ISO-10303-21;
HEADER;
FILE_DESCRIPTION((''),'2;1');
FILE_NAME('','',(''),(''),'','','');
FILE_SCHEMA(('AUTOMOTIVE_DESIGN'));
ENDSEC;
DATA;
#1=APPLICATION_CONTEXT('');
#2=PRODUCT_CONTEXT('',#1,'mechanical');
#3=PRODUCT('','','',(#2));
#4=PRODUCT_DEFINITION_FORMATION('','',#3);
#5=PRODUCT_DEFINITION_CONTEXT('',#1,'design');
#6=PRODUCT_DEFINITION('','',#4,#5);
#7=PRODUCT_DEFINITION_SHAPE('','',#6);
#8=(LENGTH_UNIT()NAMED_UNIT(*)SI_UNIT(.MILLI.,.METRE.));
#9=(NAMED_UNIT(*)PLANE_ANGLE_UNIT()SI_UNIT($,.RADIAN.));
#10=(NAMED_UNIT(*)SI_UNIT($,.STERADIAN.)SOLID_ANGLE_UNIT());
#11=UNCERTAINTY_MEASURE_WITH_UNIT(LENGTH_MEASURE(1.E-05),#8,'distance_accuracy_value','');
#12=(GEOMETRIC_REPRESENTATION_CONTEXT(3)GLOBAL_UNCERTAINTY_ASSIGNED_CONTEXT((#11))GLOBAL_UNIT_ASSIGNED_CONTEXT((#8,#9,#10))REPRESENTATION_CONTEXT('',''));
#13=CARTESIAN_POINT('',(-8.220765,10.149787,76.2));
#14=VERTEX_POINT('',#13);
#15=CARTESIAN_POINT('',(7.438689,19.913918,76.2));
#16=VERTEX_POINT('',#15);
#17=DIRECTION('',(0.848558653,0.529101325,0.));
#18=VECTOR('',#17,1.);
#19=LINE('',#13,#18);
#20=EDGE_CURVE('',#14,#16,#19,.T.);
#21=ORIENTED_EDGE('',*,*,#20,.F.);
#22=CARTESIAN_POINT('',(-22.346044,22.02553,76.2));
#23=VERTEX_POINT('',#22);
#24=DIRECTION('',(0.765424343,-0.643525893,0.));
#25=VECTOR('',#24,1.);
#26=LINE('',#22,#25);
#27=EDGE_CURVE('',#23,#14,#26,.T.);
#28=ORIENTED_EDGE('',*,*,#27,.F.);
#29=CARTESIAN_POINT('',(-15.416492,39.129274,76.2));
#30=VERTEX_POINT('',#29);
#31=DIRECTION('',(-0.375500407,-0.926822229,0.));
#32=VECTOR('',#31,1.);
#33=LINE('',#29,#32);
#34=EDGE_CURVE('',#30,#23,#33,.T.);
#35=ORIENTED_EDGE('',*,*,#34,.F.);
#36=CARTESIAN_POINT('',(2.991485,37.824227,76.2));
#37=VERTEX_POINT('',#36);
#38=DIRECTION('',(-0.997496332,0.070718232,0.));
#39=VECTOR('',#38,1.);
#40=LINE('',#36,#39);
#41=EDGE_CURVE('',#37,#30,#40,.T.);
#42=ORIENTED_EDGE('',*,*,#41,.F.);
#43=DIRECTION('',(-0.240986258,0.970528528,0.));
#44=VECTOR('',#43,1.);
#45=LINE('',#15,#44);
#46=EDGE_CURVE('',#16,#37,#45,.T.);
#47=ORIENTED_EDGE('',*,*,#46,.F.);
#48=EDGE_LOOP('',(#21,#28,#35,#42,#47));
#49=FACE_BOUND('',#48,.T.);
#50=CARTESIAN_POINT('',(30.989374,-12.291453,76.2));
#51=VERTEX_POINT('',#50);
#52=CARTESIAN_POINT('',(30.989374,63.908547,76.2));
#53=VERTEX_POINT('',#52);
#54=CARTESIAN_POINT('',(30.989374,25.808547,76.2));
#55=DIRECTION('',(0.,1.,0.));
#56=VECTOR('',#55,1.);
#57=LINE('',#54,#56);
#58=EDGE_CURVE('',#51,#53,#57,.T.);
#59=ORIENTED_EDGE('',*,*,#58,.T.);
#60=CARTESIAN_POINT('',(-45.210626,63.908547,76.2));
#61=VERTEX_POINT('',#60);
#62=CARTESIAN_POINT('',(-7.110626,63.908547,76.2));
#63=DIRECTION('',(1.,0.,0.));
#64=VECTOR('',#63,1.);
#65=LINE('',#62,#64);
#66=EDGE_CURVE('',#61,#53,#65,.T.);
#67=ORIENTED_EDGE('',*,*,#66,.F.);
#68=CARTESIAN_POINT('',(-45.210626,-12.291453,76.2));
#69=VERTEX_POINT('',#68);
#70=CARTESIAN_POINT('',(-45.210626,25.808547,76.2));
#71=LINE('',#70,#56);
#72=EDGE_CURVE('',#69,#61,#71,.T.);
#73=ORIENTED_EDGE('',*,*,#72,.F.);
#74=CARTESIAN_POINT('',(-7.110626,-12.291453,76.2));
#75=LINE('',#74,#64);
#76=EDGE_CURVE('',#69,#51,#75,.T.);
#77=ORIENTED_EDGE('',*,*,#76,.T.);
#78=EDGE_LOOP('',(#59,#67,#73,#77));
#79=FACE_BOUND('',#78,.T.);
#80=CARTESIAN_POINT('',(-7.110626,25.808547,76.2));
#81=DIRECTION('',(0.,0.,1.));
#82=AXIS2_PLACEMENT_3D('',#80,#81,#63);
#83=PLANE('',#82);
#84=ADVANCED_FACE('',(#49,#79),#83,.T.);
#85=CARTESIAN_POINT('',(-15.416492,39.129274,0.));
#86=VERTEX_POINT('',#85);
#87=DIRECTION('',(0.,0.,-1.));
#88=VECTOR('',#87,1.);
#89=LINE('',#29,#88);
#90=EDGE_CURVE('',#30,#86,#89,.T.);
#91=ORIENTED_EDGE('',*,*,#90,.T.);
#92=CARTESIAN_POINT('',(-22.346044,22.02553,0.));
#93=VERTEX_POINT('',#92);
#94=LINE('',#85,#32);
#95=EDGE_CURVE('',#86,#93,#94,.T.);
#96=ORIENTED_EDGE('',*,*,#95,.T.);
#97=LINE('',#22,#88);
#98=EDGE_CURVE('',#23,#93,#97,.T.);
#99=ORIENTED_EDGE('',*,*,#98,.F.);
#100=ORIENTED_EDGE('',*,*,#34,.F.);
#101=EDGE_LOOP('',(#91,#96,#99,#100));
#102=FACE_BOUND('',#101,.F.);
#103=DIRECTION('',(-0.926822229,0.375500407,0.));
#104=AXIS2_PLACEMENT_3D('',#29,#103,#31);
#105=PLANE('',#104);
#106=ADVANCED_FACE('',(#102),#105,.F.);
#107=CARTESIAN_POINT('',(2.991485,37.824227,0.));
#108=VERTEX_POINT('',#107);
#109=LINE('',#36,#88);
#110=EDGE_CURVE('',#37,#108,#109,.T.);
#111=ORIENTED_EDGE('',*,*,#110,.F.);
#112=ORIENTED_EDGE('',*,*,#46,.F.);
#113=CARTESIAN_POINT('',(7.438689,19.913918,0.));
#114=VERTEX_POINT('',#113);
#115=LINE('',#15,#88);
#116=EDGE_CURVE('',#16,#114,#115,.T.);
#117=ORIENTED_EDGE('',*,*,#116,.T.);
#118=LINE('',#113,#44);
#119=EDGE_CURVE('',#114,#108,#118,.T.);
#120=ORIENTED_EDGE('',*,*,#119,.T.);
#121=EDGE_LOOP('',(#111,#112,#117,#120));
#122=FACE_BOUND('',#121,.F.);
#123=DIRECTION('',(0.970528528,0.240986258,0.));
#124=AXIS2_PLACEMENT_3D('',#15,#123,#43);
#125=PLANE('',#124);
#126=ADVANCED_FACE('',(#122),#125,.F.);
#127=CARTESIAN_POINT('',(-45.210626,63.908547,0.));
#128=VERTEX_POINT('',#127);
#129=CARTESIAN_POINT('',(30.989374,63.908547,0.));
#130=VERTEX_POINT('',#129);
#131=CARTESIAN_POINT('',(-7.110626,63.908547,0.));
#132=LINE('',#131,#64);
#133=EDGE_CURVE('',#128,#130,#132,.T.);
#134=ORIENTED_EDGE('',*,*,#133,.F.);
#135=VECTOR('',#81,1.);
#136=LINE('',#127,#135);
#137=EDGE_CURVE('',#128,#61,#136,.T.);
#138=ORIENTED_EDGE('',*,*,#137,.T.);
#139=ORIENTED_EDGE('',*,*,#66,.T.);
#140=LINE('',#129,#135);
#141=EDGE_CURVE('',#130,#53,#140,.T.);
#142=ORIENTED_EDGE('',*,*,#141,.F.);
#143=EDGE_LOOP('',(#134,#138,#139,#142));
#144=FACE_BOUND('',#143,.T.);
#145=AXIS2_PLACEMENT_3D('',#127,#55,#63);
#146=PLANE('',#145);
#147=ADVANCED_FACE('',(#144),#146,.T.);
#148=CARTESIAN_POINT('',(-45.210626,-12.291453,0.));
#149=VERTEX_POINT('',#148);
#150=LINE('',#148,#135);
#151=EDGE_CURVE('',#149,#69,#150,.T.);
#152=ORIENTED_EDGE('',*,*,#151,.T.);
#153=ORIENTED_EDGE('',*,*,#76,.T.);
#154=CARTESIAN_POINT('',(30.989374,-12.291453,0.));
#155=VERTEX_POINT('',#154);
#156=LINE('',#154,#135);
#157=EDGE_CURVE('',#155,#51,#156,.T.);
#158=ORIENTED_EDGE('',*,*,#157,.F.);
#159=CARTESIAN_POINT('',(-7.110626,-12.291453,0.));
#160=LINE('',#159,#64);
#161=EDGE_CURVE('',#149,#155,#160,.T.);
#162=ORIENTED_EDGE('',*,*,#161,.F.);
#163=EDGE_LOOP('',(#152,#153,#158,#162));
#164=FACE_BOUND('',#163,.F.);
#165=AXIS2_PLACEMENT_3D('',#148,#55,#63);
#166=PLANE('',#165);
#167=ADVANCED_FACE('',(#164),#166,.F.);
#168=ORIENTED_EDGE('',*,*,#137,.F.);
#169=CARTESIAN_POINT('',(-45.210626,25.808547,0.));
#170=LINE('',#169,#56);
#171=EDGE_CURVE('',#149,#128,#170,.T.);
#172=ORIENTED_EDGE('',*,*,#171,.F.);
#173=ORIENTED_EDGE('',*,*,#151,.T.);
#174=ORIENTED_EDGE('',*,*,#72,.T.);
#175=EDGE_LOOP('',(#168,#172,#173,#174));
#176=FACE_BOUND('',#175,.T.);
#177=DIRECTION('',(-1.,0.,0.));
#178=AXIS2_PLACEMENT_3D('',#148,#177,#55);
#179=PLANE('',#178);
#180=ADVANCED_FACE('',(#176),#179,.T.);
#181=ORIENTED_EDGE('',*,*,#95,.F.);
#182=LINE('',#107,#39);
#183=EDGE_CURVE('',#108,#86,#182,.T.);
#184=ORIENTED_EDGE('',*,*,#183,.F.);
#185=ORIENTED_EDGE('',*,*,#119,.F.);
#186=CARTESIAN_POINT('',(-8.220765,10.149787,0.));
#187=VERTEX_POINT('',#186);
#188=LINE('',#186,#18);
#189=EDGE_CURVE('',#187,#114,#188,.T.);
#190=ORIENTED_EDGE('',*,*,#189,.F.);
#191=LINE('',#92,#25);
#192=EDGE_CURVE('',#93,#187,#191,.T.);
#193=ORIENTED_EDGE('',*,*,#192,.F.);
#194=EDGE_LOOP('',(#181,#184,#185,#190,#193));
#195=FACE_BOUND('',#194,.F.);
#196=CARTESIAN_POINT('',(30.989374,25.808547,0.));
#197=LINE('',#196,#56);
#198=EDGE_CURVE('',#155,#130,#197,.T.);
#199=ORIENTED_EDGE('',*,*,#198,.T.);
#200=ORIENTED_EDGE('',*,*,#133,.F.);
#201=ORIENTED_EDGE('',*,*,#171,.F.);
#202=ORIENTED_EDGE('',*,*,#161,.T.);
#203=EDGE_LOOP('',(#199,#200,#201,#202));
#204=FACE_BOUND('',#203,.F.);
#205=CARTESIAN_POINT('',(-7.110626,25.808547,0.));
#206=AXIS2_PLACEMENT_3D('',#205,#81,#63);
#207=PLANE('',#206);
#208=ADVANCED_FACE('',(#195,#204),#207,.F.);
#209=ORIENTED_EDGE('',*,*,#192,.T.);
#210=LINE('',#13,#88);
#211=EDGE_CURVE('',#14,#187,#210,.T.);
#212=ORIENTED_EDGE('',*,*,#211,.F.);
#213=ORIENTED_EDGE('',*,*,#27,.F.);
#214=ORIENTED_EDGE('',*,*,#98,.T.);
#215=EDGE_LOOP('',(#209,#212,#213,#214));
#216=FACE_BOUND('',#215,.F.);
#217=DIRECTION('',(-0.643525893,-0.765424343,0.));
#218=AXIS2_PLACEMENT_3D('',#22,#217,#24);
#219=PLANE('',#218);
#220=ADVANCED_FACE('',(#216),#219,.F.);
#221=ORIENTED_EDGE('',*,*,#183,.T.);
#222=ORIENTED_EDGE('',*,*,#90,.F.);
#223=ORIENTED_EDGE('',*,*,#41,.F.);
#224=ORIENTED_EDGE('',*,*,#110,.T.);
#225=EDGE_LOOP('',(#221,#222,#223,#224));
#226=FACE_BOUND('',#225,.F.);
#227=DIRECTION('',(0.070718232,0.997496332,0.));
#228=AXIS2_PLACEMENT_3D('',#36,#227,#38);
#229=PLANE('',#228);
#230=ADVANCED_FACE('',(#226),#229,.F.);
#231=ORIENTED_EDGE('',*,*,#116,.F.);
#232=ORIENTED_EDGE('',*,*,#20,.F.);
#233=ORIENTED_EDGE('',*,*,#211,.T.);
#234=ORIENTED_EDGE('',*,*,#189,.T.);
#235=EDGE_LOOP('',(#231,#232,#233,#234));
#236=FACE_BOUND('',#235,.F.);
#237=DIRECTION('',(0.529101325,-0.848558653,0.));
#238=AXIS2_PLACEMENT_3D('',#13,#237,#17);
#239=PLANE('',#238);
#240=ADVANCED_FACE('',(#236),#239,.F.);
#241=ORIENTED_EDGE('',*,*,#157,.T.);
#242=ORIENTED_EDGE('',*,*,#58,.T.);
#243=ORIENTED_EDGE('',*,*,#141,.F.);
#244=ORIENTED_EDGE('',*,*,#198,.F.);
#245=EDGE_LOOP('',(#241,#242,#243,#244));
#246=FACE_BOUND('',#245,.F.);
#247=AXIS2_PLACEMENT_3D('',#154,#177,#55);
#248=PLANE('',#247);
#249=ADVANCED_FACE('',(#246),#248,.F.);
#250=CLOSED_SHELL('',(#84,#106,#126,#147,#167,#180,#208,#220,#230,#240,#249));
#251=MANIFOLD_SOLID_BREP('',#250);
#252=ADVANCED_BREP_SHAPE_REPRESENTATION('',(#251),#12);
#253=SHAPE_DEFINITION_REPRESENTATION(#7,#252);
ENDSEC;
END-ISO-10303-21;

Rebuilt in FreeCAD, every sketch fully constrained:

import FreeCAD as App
import Part
import Sketcher

V = App.Vector
Q = App.Units.Quantity

doc = App.newDocument("Part")
body = doc.addObject("PartDesign::Body", "Body")

# Sketch on XY plane
sketch1 = body.newObject("Sketcher::SketchObject", "Sketch")
sketch1.AttachmentSupport = (doc.getObject("XY_Plane"), [""])
sketch1.MapMode = "FlatFace"
sketch1.addGeometry(Part.LineSegment(V(-45, 64, 0), V(-45, -12, 0)), False)
sketch1.addGeometry(Part.LineSegment(V(-45, -12, 0), V(31, -12, 0)), False)
sketch1.addGeometry(Part.LineSegment(V(31, -12, 0), V(31, 64, 0)), False)
sketch1.addGeometry(Part.LineSegment(V(31, 64, 0), V(-45, 64, 0)), False)
sketch1.addConstraint(Sketcher.Constraint("Coincident", 0, 2, 1, 1))
sketch1.addConstraint(Sketcher.Constraint("Coincident", 1, 2, 2, 1))
sketch1.addConstraint(Sketcher.Constraint("Coincident", 2, 2, 3, 1))
sketch1.addConstraint(Sketcher.Constraint("Coincident", 3, 2, 0, 1))
sketch1.addConstraint(Sketcher.Constraint("Vertical", 0))
sketch1.addConstraint(Sketcher.Constraint("Horizontal", 1))
sketch1.addConstraint(Sketcher.Constraint("Vertical", 2))
sketch1.addConstraint(Sketcher.Constraint("Horizontal", 3))
sketch1.addConstraint(Sketcher.Constraint("Equal", 3, 0))
sketch1.addConstraint(Sketcher.Constraint("DistanceX", 1, 1, 1, 2, Q("3 in")))
sketch1.addConstraint(Sketcher.Constraint("DistanceX", 0, 2, -1, 1, Q("45.210626 mm")))
sketch1.addConstraint(Sketcher.Constraint("DistanceY", 0, 2, -1, 1, Q("12.291453 mm")))
pad1 = body.newObject("PartDesign::Pad", "Pad")
pad1.Profile = sketch1
pad1.Length = Q("3 in")

# Sketch on XY plane
sketch2 = body.newObject("Sketcher::SketchObject", "Sketch001")
sketch2.AttachmentSupport = (doc.getObject("XY_Plane"), [""])
sketch2.MapMode = "FlatFace"
sketch2.AttachmentOffset = App.Placement(V(0, 0, 3 * 25.4), App.Rotation())
sketch2.addGeometry(Part.LineSegment(V(-8.220765, 10.149787, 0), V(7.438689, 19.913918, 0)), False)
sketch2.addGeometry(Part.LineSegment(V(7.438689, 19.913918, 0), V(2.991485, 37.824227, 0)), False)
sketch2.addGeometry(Part.LineSegment(V(2.991485, 37.824227, 0), V(-15.416492, 39.129274, 0)), False)
sketch2.addGeometry(Part.LineSegment(V(-15.416492, 39.129274, 0), V(-22.346044, 22.02553, 0)), False)
sketch2.addGeometry(Part.LineSegment(V(-22.346044, 22.02553, 0), V(-8.220765, 10.149787, 0)), False)
sketch2.addConstraint(Sketcher.Constraint("Coincident", 0, 2, 1, 1))
sketch2.addConstraint(Sketcher.Constraint("Coincident", 1, 2, 2, 1))
sketch2.addConstraint(Sketcher.Constraint("Coincident", 2, 2, 3, 1))
sketch2.addConstraint(Sketcher.Constraint("Coincident", 3, 2, 4, 1))
sketch2.addConstraint(Sketcher.Constraint("Coincident", 4, 2, 0, 1))
sketch2.addConstraint(Sketcher.Constraint("Distance", 0, Q("18.45418 mm")))
sketch2.addConstraint(Sketcher.Constraint("Distance", 1, Q("18.454181 mm")))
sketch2.addConstraint(Sketcher.Constraint("Distance", 2, Q("18.45418 mm")))
sketch2.addConstraint(Sketcher.Constraint("Distance", 3, Q("18.45418 mm")))
sketch2.addConstraint(Sketcher.Constraint("Distance", 4, Q("18.454181 mm")))
sketch2.addConstraint(Sketcher.Constraint("DistanceX", -1, 1, 0, 2, Q("7.438689 mm")))
sketch2.addConstraint(Sketcher.Constraint("DistanceY", -1, 1, 3, 2, Q("22.02553 mm")))
sketch2.addConstraint(Sketcher.Constraint("DistanceY", 0, 2, 1, 2, Q("17.910309 mm")))
sketch2.addConstraint(Sketcher.Constraint("DistanceX", 2, 2, 0, 2, Q("22.855181 mm")))
sketch2.addConstraint(Sketcher.Constraint("DistanceX", 3, 2, 2, 2, Q("6.929552 mm")))
pocket1 = body.newObject("PartDesign::Pocket", "Pocket")
pocket1.Profile = sketch2
pocket1.Length = Q("3 in")

doc.recompute()
